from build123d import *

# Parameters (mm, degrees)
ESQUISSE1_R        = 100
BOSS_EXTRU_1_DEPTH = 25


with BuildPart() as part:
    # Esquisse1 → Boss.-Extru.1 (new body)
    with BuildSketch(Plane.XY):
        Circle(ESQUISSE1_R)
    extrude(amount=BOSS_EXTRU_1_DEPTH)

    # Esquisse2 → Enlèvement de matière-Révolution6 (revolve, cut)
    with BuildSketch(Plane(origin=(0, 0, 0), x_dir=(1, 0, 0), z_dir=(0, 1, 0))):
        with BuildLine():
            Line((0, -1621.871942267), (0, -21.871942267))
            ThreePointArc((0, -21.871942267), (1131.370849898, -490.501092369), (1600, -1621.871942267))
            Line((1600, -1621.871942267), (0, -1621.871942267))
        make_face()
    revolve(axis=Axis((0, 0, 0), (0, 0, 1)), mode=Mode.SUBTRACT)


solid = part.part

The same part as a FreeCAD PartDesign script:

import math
import FreeCAD as App
import Part
import Sketcher
from FreeCAD import Vector

doc = App.newDocument("Part")
params = doc.addObject("Spreadsheet::Sheet", "Params")
for row, (alias, value) in enumerate([
    ("sketch1_diameter", "200 mm"),
    ("pad1_length", "25 mm"),
    ("sketch2_radius", "1600 mm"),
    ("groove_angle", "360 deg"),
], start=1):
    params.set(f"A{row}", alias)
    params.set(f"B{row}", "=" + value)
    params.setAlias(f"B{row}", alias)

body = doc.addObject("PartDesign::Body", "Body")

# Sketch on XY plane
sketch1 = doc.addObject("Sketcher::SketchObject", "Sketch")
body.addObject(sketch1)
sketch1.AttachmentSupport = (doc.XY_Plane, [""])
sketch1.MapMode = "FlatFace"
sketch1.addGeometry(Part.Circle(Vector(0, 0, 0), Vector(0, 0, 1), 100), False)
sketch1.addConstraint(Sketcher.Constraint("Coincident", 0, 3, -1, 1))
sketch1.addConstraint(Sketcher.Constraint("Diameter", 0, 200.0))
sketch1.setExpression("Constraints[1]", "Params.sketch1_diameter")
pad1 = doc.addObject("PartDesign::Pad", "Pad")
body.addObject(pad1)
pad1.Profile = sketch1
pad1.setExpression("Length", "Params.pad1_length")

# Sketch on XZ plane
sketch2 = doc.addObject("Sketcher::SketchObject", "Sketch001")
body.addObject(sketch2)
sketch2.AttachmentSupport = (doc.XZ_Plane, [""])
sketch2.MapMode = "FlatFace"
sketch2.addGeometry(Part.LineSegment(Vector(0, 22, 0), Vector(0, 1622, 0)), False)
sketch2.addGeometry(Part.LineSegment(Vector(0, 1622, 0), Vector(1600, 1622, 0)), False)
sketch2.addGeometry(Part.ArcOfCircle(Part.Circle(Vector(0, 1622, 0), Vector(0, 0, 1), 1600), math.radians(-90), math.radians(0)), False)
sketch2.addConstraint(Sketcher.Constraint("Coincident", 0, 2, 1, 1))
sketch2.addConstraint(Sketcher.Constraint("Coincident", 1, 2, 2, 2))
sketch2.addConstraint(Sketcher.Constraint("Coincident", 2, 1, 0, 1))
sketch2.addConstraint(Sketcher.Constraint("Vertical", 0))
sketch2.addConstraint(Sketcher.Constraint("Horizontal", 1))
sketch2.addConstraint(Sketcher.Constraint("Coincident", 0, 2, 2, 3))
sketch2.addConstraint(Sketcher.Constraint("PointOnObject", 2, 3, -2))
sketch2.addConstraint(Sketcher.Constraint("Radius", 2, 1600.0))
sketch2.addConstraint(Sketcher.Constraint("DistanceY", -1, 1, 2, 3, 1621.871942))
sketch2.setExpression("Constraints[7]", "Params.sketch2_radius")
groove = doc.addObject("PartDesign::Groove", "Groove")
body.addObject(groove)
groove.Profile = sketch2
groove.ReferenceAxis = (sketch2, ["V_Axis"])
groove.setExpression("Angle", "Params.groove_angle")

doc.recompute()
